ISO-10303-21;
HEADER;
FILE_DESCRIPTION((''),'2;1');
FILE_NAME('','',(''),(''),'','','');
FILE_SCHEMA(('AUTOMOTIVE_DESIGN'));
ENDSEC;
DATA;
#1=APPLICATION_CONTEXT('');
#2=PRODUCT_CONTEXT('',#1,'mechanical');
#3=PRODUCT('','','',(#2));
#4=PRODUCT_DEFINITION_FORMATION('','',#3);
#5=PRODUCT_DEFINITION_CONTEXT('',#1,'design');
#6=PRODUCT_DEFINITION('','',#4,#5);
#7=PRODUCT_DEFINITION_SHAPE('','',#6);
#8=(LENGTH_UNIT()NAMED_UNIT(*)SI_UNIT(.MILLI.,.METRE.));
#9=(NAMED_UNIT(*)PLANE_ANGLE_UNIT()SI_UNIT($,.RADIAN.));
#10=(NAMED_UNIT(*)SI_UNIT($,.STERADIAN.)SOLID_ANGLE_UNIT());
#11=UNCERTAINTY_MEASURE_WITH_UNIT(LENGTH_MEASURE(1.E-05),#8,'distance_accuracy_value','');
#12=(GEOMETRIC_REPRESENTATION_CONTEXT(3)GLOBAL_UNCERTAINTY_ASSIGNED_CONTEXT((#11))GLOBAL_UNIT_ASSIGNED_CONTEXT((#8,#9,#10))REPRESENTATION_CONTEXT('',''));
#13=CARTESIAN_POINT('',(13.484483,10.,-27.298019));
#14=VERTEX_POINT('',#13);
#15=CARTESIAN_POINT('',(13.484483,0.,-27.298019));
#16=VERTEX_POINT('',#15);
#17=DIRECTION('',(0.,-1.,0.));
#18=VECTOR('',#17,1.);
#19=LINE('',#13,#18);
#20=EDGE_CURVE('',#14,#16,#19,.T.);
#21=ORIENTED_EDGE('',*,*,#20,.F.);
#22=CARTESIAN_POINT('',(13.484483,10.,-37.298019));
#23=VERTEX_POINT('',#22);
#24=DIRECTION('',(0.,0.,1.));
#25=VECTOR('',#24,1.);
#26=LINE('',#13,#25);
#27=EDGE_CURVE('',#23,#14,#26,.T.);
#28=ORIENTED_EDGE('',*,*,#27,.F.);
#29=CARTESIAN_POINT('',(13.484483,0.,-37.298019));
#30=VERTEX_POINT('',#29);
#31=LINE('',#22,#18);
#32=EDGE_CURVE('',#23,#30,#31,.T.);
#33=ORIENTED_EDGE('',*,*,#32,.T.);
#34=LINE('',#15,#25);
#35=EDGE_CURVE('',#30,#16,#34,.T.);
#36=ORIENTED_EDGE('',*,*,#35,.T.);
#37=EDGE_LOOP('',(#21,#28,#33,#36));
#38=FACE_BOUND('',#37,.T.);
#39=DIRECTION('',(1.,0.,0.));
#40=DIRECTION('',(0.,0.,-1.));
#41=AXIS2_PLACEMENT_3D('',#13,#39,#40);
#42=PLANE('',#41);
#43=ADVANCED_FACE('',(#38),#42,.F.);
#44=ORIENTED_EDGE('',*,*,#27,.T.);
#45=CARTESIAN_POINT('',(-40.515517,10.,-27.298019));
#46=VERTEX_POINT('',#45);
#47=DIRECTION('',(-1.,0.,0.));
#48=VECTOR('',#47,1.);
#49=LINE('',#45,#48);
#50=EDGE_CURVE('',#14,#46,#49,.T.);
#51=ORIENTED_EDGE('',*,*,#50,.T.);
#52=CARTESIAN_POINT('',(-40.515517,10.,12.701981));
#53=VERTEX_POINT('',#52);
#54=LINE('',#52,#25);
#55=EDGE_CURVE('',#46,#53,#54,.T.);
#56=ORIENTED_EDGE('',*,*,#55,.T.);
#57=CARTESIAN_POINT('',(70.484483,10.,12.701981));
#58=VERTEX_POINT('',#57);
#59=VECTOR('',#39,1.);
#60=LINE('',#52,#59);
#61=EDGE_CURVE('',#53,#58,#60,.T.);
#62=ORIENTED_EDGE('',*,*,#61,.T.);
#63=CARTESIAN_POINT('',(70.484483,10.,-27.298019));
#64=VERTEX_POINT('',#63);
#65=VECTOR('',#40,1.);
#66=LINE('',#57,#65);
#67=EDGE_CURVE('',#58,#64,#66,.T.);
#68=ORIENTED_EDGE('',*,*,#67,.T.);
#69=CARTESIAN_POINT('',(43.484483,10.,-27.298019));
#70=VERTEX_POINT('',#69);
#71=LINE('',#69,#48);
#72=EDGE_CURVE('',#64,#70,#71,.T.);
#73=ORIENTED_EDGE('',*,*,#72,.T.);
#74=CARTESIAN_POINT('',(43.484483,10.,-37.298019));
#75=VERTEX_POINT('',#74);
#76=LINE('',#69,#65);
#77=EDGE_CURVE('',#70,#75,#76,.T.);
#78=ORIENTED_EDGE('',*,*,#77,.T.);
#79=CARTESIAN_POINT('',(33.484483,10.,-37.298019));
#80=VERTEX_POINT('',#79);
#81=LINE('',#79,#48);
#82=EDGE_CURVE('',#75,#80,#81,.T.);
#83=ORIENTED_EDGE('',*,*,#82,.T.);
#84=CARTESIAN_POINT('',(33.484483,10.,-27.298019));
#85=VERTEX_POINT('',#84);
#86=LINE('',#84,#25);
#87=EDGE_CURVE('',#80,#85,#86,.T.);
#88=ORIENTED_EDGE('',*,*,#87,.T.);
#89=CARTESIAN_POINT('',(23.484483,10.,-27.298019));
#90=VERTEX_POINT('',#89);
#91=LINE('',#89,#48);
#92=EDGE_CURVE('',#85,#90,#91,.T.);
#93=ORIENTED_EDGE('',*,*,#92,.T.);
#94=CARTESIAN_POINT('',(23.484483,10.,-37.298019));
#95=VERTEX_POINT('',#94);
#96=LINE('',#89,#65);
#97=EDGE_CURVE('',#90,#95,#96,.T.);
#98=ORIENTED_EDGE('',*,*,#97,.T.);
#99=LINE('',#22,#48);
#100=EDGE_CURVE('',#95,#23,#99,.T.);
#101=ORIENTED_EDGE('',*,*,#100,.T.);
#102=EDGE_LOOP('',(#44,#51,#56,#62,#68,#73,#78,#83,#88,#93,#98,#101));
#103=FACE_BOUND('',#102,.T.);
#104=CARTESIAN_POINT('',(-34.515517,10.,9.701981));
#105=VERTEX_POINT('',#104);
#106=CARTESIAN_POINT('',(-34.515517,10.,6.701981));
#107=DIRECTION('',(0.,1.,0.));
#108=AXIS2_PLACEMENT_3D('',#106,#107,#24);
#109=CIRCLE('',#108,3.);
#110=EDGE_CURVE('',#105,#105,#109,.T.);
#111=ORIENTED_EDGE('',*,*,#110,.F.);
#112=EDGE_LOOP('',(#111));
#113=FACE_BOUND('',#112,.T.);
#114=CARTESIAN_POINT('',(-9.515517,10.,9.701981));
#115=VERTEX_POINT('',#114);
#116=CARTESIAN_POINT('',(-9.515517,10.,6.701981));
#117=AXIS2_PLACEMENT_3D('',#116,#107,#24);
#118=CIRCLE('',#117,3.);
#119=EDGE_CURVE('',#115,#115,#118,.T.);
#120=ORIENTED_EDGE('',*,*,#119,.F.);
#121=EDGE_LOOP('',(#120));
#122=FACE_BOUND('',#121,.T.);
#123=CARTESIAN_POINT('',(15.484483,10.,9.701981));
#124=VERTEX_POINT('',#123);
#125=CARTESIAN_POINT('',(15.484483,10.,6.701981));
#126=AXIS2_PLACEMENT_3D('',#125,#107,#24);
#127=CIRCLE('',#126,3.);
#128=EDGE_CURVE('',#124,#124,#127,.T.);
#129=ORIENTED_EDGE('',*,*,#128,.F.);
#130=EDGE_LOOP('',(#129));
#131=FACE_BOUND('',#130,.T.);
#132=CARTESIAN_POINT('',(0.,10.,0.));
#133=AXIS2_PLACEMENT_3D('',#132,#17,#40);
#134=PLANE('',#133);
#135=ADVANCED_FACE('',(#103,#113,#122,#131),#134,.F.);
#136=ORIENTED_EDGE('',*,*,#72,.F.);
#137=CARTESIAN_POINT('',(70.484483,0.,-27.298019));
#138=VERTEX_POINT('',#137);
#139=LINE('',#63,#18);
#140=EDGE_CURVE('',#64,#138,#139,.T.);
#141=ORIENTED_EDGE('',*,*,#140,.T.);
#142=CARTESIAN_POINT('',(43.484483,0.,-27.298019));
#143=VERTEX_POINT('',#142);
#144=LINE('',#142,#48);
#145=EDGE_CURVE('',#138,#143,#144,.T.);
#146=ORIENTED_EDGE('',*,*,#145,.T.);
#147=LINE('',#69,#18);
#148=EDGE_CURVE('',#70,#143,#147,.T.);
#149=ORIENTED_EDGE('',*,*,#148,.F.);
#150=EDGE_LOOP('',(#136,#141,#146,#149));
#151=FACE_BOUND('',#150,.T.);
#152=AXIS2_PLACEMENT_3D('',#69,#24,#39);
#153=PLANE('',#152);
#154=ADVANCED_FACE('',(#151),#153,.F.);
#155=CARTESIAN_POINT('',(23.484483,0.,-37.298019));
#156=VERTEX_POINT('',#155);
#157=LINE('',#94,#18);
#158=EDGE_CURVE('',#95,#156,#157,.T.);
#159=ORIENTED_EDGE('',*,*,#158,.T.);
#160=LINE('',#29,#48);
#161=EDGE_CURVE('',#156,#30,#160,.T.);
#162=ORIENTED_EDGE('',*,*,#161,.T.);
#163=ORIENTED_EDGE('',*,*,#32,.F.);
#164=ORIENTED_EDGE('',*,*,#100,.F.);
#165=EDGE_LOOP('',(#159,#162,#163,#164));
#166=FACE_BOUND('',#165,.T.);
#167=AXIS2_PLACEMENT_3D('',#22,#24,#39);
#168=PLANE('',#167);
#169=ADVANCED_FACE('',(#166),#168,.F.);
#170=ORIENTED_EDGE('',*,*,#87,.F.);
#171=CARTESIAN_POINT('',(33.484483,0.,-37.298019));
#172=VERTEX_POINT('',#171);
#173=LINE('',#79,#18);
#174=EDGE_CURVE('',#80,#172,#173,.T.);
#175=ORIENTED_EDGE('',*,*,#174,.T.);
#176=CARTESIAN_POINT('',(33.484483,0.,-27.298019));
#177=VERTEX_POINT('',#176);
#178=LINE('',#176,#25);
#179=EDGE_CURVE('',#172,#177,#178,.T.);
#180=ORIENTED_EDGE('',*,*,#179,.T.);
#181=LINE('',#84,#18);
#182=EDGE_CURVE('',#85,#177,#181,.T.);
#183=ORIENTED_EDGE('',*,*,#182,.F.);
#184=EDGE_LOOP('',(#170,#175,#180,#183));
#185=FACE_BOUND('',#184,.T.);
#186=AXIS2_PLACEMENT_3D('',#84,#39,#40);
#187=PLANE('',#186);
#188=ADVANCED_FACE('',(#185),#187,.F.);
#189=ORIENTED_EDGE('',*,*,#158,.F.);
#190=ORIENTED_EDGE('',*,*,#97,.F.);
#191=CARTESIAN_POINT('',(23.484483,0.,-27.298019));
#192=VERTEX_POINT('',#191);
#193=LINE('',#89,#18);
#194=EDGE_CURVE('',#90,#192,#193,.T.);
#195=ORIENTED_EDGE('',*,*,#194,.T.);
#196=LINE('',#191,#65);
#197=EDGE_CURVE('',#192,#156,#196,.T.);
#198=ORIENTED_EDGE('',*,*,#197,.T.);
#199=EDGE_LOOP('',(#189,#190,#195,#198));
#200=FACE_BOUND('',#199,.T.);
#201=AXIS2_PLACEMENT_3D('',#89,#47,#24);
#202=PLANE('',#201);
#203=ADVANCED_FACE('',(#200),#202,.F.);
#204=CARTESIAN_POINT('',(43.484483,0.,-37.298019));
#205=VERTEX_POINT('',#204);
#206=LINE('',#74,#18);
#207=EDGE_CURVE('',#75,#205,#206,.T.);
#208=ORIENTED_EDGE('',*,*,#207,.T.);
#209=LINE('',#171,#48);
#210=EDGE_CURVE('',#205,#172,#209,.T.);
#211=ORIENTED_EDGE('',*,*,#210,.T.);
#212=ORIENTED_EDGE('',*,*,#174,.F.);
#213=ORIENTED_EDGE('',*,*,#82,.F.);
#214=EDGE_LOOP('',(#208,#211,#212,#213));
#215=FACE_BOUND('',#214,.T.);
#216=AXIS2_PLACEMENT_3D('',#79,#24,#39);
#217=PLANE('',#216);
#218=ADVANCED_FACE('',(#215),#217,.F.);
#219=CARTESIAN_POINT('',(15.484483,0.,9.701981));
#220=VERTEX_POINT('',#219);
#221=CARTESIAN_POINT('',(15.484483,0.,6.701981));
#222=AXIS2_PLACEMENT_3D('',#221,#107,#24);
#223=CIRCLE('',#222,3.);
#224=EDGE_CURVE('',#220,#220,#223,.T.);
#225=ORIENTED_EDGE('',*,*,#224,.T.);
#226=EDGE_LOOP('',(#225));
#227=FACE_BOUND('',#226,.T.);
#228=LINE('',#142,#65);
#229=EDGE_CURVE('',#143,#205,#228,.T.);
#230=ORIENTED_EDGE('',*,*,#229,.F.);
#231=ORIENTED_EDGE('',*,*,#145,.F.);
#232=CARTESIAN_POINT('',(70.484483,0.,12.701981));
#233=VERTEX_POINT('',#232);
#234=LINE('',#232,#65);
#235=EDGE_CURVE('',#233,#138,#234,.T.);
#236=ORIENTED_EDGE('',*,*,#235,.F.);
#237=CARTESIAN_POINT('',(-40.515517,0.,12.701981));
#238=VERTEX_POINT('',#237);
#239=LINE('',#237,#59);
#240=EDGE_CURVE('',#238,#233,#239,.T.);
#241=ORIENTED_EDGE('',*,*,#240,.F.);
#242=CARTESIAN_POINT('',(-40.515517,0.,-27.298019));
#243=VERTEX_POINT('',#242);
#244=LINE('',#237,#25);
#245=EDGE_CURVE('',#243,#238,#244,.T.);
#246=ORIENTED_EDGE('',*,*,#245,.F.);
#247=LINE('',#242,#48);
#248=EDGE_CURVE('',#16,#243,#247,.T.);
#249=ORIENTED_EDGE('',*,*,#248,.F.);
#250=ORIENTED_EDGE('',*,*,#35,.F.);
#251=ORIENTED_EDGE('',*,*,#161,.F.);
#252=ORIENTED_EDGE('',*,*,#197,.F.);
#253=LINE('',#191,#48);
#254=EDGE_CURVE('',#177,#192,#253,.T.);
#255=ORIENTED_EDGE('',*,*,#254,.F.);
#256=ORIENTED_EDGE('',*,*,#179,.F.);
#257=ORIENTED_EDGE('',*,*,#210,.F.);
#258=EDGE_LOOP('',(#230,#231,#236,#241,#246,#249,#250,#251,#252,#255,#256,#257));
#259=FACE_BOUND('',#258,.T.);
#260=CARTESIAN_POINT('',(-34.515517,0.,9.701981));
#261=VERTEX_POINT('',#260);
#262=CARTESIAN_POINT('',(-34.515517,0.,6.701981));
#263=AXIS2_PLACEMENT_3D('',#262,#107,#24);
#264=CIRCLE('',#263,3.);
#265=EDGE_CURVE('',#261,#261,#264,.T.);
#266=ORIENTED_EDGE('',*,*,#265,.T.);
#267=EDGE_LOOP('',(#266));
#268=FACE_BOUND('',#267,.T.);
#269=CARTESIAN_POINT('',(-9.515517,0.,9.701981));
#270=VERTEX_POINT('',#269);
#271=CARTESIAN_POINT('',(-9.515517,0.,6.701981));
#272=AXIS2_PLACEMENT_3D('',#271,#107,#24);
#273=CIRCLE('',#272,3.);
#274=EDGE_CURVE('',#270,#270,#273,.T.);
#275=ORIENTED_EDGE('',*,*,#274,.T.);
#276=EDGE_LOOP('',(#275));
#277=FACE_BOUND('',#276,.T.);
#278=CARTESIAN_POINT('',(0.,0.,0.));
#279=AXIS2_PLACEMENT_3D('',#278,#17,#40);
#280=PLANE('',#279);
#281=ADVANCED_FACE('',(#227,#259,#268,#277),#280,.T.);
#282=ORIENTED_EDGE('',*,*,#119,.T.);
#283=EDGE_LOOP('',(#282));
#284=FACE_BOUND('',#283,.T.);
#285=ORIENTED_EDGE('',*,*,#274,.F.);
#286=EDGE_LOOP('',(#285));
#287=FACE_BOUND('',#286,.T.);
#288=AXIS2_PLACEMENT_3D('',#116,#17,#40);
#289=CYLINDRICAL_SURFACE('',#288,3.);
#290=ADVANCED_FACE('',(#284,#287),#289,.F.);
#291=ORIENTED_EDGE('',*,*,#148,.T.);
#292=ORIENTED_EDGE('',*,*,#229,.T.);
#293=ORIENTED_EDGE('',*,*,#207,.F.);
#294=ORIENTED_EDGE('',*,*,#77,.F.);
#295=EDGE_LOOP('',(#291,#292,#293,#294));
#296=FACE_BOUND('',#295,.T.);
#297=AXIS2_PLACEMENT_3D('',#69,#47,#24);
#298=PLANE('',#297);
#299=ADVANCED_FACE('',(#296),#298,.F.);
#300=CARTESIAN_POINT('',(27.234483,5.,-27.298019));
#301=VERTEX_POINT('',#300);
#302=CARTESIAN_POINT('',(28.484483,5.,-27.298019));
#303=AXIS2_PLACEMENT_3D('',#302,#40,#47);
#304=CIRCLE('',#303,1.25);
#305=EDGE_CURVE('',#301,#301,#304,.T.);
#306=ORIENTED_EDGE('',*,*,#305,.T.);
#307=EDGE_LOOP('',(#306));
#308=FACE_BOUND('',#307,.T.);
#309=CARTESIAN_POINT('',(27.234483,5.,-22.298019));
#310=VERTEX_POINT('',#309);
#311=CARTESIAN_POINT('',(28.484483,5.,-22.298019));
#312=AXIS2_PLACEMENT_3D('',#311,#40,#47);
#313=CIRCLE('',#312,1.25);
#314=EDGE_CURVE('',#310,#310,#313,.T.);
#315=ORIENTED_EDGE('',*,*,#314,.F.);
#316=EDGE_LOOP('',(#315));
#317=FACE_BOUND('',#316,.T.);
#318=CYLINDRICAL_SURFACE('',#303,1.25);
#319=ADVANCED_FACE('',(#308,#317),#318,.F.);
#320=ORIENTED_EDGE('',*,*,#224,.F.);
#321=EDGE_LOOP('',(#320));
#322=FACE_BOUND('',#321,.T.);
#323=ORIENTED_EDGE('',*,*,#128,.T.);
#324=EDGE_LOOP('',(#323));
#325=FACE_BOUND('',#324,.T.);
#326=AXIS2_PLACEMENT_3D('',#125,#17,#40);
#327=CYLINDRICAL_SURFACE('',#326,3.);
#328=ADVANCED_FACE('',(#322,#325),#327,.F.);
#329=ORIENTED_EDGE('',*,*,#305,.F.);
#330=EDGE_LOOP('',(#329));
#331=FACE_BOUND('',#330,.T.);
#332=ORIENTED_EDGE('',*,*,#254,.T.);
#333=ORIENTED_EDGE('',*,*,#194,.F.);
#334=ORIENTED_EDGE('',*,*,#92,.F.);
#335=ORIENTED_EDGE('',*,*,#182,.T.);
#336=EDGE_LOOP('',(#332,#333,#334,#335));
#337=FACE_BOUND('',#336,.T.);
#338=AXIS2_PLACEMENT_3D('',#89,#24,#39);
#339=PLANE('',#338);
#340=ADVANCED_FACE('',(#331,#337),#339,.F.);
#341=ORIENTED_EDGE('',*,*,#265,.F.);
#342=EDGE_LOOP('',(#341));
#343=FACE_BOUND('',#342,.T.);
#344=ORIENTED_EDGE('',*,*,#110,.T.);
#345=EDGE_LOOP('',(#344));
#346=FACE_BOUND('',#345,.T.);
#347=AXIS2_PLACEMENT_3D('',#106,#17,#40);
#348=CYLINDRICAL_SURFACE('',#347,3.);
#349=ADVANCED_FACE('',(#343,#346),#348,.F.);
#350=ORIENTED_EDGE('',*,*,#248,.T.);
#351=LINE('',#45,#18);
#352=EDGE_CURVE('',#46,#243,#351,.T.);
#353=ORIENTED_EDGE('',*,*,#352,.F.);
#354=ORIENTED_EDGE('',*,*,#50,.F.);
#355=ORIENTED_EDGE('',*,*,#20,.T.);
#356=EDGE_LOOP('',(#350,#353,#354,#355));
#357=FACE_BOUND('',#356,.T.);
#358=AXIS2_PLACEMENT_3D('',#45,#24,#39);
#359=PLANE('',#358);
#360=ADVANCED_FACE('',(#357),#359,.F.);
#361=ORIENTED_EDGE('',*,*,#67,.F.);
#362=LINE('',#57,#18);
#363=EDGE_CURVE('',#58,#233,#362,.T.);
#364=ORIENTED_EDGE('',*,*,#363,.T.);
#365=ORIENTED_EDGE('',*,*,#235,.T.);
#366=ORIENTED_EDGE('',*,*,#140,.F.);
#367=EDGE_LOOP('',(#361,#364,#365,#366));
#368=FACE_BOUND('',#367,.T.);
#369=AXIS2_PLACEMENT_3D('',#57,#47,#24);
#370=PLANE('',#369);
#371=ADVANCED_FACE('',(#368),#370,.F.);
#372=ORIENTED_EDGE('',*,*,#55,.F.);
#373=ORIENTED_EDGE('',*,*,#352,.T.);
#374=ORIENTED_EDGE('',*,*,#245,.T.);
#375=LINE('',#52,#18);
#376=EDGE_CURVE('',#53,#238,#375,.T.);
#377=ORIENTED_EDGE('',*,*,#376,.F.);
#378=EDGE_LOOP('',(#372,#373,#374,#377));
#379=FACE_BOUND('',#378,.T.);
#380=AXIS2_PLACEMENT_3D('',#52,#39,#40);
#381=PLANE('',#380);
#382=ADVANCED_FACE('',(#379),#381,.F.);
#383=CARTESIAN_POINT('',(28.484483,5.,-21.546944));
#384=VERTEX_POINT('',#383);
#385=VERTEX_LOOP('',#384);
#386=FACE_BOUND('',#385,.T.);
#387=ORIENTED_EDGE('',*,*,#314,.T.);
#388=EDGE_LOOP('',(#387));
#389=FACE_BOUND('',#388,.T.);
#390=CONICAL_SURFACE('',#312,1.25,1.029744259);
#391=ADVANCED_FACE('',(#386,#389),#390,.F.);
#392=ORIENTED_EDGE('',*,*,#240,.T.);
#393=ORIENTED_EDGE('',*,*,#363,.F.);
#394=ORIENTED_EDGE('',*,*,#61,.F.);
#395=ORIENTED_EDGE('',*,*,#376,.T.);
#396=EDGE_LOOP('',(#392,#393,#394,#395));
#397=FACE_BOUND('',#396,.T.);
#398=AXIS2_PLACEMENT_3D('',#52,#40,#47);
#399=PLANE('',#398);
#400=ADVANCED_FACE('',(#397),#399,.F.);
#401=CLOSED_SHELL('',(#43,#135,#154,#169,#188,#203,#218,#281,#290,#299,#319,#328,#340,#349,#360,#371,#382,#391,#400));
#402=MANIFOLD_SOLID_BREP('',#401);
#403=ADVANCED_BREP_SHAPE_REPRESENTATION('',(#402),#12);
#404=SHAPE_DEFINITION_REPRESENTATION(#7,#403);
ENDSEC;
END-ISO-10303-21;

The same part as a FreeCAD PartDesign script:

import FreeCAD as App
import Part
import Sketcher
Q = App.Units.Quantity

doc = App.newDocument("Part")
params = doc.addObject("Spreadsheet::Sheet", "Params")
for row, (alias, value) in enumerate([
    ("sketch1_diameter", "6 mm"),
    ("sketch1_width", "10 mm"),
    ("sketch1_width2", "54 mm"),
    ("sketch1_width3", "111 mm"),
    ("sketch1_height", "40 mm"),
    ("pad1_length", "10 mm"),
    ("sketch2_diameter", "2.5 mm"),
    ("hole_diameter", "2.5 mm"),
    ("hole_depth", "5 mm"),
], start=1):
    params.set(f"A{row}", alias)
    params.set(f"B{row}", "=" + value)
    params.setAlias(f"B{row}", alias)

body = doc.addObject("PartDesign::Body", "Body")

# Sketch on XZ plane
sketch1 = body.newObject("Sketcher::SketchObject", "Sketch")
sketch1.AttachmentSupport = (doc.getObject("XZ_Plane"), [""])
sketch1.MapMode = "FlatFace"
sketch1.addGeometry([
    Part.LineSegment(App.Vector(33.5, -27.3, 0), App.Vector(23.5, -27.3, 0)),  # 0
    Part.LineSegment(App.Vector(23.5, -27.3, 0), App.Vector(23.5, -37.3, 0)),  # 1
    Part.LineSegment(App.Vector(23.5, -37.3, 0), App.Vector(13.5, -37.3, 0)),  # 2
    Part.LineSegment(App.Vector(13.5, -37.3, 0), App.Vector(13.5, -27.3, 0)),  # 3
    Part.LineSegment(App.Vector(13.5, -27.3, 0), App.Vector(-40.5, -27.3, 0)),  # 4
    Part.LineSegment(App.Vector(-40.5, -27.3, 0), App.Vector(-40.5, 12.7, 0)),  # 5
    Part.LineSegment(App.Vector(-40.5, 12.7, 0), App.Vector(70.5, 12.7, 0)),  # 6
    Part.LineSegment(App.Vector(70.5, 12.7, 0), App.Vector(70.5, -27.3, 0)),  # 7
    Part.LineSegment(App.Vector(70.5, -27.3, 0), App.Vector(43.5, -27.3, 0)),  # 8
    Part.LineSegment(App.Vector(43.5, -27.3, 0), App.Vector(43.5, -37.3, 0)),  # 9
    Part.LineSegment(App.Vector(43.5, -37.3, 0), App.Vector(33.5, -37.3, 0)),  # 10
    Part.LineSegment(App.Vector(33.5, -37.3, 0), App.Vector(33.5, -27.3, 0)),  # 11
    Part.Circle(App.Vector(15.5, 6.7, 0), App.Vector(0, 0, 1), 3),  # 12
    Part.Circle(App.Vector(-9.5, 6.7, 0), App.Vector(0, 0, 1), 3),  # 13
    Part.Circle(App.Vector(-34.5, 6.7, 0), App.Vector(0, 0, 1), 3),  # 14
], False)
sketch1.addConstraint([
    Sketcher.Constraint("Coincident", 0, 2, 1, 1),
    Sketcher.Constraint("Coincident", 1, 2, 2, 1),
    Sketcher.Constraint("Coincident", 2, 2, 3, 1),
    Sketcher.Constraint("Coincident", 3, 2, 4, 1),
    Sketcher.Constraint("Coincident", 4, 2, 5, 1),
    Sketcher.Constraint("Coincident", 5, 2, 6, 1),
    Sketcher.Constraint("Coincident", 6, 2, 7, 1),
    Sketcher.Constraint("Coincident", 7, 2, 8, 1),
    Sketcher.Constraint("Coincident", 8, 2, 9, 1),
    Sketcher.Constraint("Coincident", 9, 2, 10, 1),
    Sketcher.Constraint("Coincident", 10, 2, 11, 1),
    Sketcher.Constraint("Coincident", 11, 2, 0, 1),
    Sketcher.Constraint("Horizontal", 0),
    Sketcher.Constraint("Vertical", 1),
    Sketcher.Constraint("Horizontal", 2),
    Sketcher.Constraint("Vertical", 3),
    Sketcher.Constraint("Horizontal", 4),
    Sketcher.Constraint("Vertical", 5),
    Sketcher.Constraint("Horizontal", 6),
    Sketcher.Constraint("Vertical", 7),
    Sketcher.Constraint("Horizontal", 8),
    Sketcher.Constraint("Vertical", 9),
    Sketcher.Constraint("Horizontal", 10),
    Sketcher.Constraint("Vertical", 11),
    Sketcher.Constraint("Equal", 12, 13),
    Sketcher.Constraint("Equal", 13, 14),
    Sketcher.Constraint("Horizontal", 12, 3, 13, 3),
    Sketcher.Constraint("Horizontal", 13, 3, 14, 3),
    Sketcher.Constraint("Horizontal", 0, 2, 3, 2),
    Sketcher.Constraint("Horizontal", 4, 2, 7, 2),
    Sketcher.Constraint("Horizontal", 2, 2, 9, 2),
    Sketcher.Constraint("Equal", 0, 2),
    Sketcher.Constraint("Equal", 2, 10),
    Sketcher.Constraint("Equal", 10, 1),
    Sketcher.Constraint("Diameter", 12, Q("6 mm")),
    Sketcher.Constraint("DistanceX", 0, 2, 0, 1, Q("10 mm")),
    Sketcher.Constraint("DistanceX", 4, 2, 4, 1, Q("54 mm")),
    Sketcher.Constraint("DistanceX", 6, 1, 6, 2, Q("111 mm")),
    Sketcher.Constraint("DistanceY", 5, 1, 5, 2, Q("40 mm")),
    Sketcher.Constraint("DistanceX", 13, 3, 12, 3, Q("25 mm")),
    Sketcher.Constraint("DistanceX", 14, 3, 13, 3, Q("25 mm")),
    Sketcher.Constraint("DistanceX", 12, 3, 0, 2, Q("8 mm")),
    Sketcher.Constraint("DistanceY", 0, 2, 12, 3, Q("34 mm")),
    Sketcher.Constraint("DistanceY", -1, 1, 12, 3, Q("6.701981 mm")),
    Sketcher.Constraint("DistanceX", -1, 1, 12, 3, Q("15.484483 mm")),
])
sketch1.setExpression("Constraints[34]", "Params.sketch1_diameter")
sketch1.setExpression("Constraints[35]", "Params.sketch1_width")
sketch1.setExpression("Constraints[36]", "Params.sketch1_width2")
sketch1.setExpression("Constraints[37]", "Params.sketch1_width3")
sketch1.setExpression("Constraints[38]", "Params.sketch1_height")
pad1 = body.newObject("PartDesign::Pad", "Pad")
pad1.Profile = sketch1
pad1.setExpression("Length", "Params.pad1_length")
pad1.Reversed = True

# Sketch on XY plane
sketch2 = body.newObject("Sketcher::SketchObject", "Sketch001")
sketch2.AttachmentSupport = (doc.getObject("XY_Plane"), [""])
sketch2.MapMode = "FlatFace"
sketch2.AttachmentOffset = App.Placement(App.Vector(0, 0, -27.298019), App.Rotation())
sketch2.addGeometry(Part.Circle(App.Vector(28.5, 5, 0), App.Vector(0, 0, 1), 1.2), False)
sketch2.addConstraint([
    Sketcher.Constraint("Diameter", 0, Q("2.5 mm")),
    Sketcher.Constraint("DistanceY", -1, 1, 0, 3, Q("5 mm")),
    Sketcher.Constraint("DistanceX", -1, 1, 0, 3, Q("28.484483 mm")),
])
sketch2.setExpression("Constraints[0]", "Params.sketch2_diameter")
doc.recompute()
hole = body.newObject("PartDesign::Hole", "Hole")
hole.Profile = sketch2
hole.ThreadType = "None"
hole.setExpression("Diameter", "Params.hole_diameter")
hole.DepthType = "Dimension"
hole.setExpression("Depth", "Params.hole_depth")
hole.DrillPoint = "Angled"
hole.DrillPointAngle = 118
hole.Reversed = True

doc.recompute()
